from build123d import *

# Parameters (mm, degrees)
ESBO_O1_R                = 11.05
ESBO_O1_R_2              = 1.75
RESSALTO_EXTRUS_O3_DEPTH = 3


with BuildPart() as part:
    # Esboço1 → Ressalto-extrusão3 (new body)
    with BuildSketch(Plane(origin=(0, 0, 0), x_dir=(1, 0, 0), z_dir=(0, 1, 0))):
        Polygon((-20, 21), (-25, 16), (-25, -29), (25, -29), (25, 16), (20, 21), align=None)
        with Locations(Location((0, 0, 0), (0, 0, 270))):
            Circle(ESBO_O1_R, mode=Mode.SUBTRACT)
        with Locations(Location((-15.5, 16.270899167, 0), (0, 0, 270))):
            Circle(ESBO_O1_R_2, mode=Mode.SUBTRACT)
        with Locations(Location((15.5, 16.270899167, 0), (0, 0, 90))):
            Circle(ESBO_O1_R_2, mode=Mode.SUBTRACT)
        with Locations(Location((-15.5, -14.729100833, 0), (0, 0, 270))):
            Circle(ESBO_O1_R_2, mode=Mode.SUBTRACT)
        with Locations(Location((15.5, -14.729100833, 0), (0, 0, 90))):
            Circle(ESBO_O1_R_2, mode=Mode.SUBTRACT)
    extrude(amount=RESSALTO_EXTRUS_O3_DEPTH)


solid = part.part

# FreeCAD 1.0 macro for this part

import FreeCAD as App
import Part
import Sketcher
from FreeCAD import Vector
Q = App.Units.Quantity

doc = App.newDocument("Part")
body = doc.addObject("PartDesign::Body", "Body")

sketch1 = body.newObject("Sketcher::SketchObject", "Sketch")
sketch1.AttachmentSupport = (doc.getObject("XZ_Plane"), [""])
sketch1.MapMode = "FlatFace"
sketch1.addGeometry(Part.LineSegment(Vector(-20, -21, 0), Vector(-25, -16, 0)), False)
sketch1.addGeometry(Part.LineSegment(Vector(-25, -16, 0), Vector(-25, 29, 0)), False)
sketch1.addGeometry(Part.LineSegment(Vector(-25, 29, 0), Vector(25, 29, 0)), False)
sketch1.addGeometry(Part.LineSegment(Vector(25, 29, 0), Vector(25, -16, 0)), False)
sketch1.addGeometry(Part.LineSegment(Vector(25, -16, 0), Vector(20, -21, 0)), False)
sketch1.addGeometry(Part.LineSegment(Vector(20, -21, 0), Vector(-20, -21, 0)), False)
sketch1.addGeometry(Part.Circle(Vector(-15.5, 14.7, 0), Vector(0, 0, 1), 1.8), False)
sketch1.addGeometry(Part.Circle(Vector(15.5, 14.7, 0), Vector(0, 0, 1), 1.8), False)
sketch1.addGeometry(Part.Circle(Vector(0, 0, 0), Vector(0, 0, 1), 11.1), False)
sketch1.addGeometry(Part.Circle(Vector(-15.5, -16.3, 0), Vector(0, 0, 1), 1.8), False)
sketch1.addGeometry(Part.Circle(Vector(15.5, -16.3, 0), Vector(0, 0, 1), 1.8), False)
sketch1.addConstraint(Sketcher.Constraint("Coincident", 0, 2, 1, 1))
sketch1.addConstraint(Sketcher.Constraint("Coincident", 1, 2, 2, 1))
sketch1.addConstraint(Sketcher.Constraint("Coincident", 2, 2, 3, 1))
sketch1.addConstraint(Sketcher.Constraint("Coincident", 3, 2, 4, 1))
sketch1.addConstraint(Sketcher.Constraint("Coincident", 4, 2, 5, 1))
sketch1.addConstraint(Sketcher.Constraint("Coincident", 5, 2, 0, 1))
sketch1.addConstraint(Sketcher.Constraint("Vertical", 1))
sketch1.addConstraint(Sketcher.Constraint("Horizontal", 2))
sketch1.addConstraint(Sketcher.Constraint("Vertical", 3))
sketch1.addConstraint(Sketcher.Constraint("Horizontal", 5))
sketch1.addConstraint(Sketcher.Constraint("Coincident", 8, 3, -1, 1))
sketch1.addConstraint(Sketcher.Constraint("Equal", 6, 7))
sketch1.addConstraint(Sketcher.Constraint("Equal", 7, 9))
sketch1.addConstraint(Sketcher.Constraint("Equal", 9, 10))
sketch1.addConstraint(Sketcher.Constraint("Symmetric", 6, 3, 7, 3, -2))
sketch1.addConstraint(Sketcher.Constraint("Symmetric", 9, 3, 10, 3, -2))
sketch1.addConstraint(Sketcher.Constraint("Symmetric", 0, 2, 3, 2, -2))
sketch1.addConstraint(Sketcher.Constraint("Perpendicular", 0, 4))
sketch1.addConstraint(Sketcher.Constraint("Vertical", 6, 3, 9, 3))
sketch1.addConstraint(Sketcher.Constraint("Equal", 0, 4))
sketch1.addConstraint(Sketcher.Constraint("Diameter", 6, Q("3.5 mm")))
sketch1.addConstraint(Sketcher.Constraint("Diameter", 8, Q("22.1 mm")))
sketch1.addConstraint(Sketcher.Constraint("DistanceX", 2, 1, 2, 2, Q("50 mm")))
sketch1.addConstraint(Sketcher.Constraint("DistanceX", 5, 2, 5, 1, Q("40 mm")))
sketch1.addConstraint(Sketcher.Constraint("DistanceY", 1, 1, 1, 2, Q("45 mm")))
sketch1.addConstraint(Sketcher.Constraint("DistanceY", 0, 2, -1, 1, Q("16 mm")))
sketch1.addConstraint(Sketcher.Constraint("DistanceX", 6, 3, 7, 3, Q("31 mm")))
sketch1.addConstraint(Sketcher.Constraint("DistanceY", 9, 3, 6, 3, Q("31 mm")))
sketch1.addConstraint(Sketcher.Constraint("DistanceY", -1, 1, 6, 3, Q("14.729101 mm")))
pad1 = body.newObject("PartDesign::Pad", "Pad")
pad1.Profile = sketch1
pad1.Length = 3
pad1.Reversed = True

doc.recompute()
